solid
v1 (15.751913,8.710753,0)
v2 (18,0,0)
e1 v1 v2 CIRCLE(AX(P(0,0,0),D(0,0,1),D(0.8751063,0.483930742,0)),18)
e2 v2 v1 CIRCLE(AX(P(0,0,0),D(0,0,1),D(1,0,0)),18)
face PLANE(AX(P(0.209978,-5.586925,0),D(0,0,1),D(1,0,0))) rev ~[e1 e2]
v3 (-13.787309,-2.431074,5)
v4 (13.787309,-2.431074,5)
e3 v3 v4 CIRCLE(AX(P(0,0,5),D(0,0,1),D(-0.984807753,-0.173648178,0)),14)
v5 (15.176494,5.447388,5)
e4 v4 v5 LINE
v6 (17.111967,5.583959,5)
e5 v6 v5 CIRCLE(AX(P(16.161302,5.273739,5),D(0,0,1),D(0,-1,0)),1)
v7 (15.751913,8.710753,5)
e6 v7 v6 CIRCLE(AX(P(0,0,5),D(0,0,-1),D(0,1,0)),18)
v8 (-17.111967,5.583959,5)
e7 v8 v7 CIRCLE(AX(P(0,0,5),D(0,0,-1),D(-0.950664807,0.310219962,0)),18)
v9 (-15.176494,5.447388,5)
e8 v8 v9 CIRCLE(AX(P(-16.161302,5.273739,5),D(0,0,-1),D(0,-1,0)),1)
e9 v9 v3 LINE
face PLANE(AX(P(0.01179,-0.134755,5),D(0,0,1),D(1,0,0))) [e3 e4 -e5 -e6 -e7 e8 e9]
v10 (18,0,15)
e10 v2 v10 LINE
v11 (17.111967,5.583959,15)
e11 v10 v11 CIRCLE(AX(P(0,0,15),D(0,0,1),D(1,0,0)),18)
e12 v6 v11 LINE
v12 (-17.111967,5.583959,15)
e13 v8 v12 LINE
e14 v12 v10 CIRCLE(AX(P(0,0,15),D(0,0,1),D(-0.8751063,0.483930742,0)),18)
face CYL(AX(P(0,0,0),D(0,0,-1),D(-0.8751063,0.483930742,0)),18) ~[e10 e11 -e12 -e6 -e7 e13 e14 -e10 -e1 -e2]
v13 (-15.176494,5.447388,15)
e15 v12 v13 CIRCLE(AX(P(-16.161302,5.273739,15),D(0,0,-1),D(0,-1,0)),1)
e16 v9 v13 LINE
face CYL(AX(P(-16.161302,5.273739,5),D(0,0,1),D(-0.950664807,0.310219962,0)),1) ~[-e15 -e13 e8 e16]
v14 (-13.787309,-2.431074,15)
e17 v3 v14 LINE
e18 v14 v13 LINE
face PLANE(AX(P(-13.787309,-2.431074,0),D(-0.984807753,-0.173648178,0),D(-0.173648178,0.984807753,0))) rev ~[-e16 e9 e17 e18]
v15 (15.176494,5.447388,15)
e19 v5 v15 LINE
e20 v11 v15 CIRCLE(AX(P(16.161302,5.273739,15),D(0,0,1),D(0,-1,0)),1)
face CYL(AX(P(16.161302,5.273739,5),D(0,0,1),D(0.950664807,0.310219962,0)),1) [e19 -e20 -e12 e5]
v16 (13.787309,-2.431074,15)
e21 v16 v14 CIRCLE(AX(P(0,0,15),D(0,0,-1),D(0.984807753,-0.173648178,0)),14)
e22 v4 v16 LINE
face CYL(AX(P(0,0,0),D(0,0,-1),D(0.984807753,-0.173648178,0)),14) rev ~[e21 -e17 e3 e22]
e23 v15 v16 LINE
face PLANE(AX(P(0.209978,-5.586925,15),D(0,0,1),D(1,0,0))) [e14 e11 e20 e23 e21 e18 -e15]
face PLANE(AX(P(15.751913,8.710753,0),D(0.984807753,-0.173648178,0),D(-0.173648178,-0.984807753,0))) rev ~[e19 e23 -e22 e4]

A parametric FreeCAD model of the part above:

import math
import FreeCAD as App
import Part
import Sketcher
Q = App.Units.Quantity


def edges_at(feature, points):
    """Names of the edges that pass closest to the given points."""
    edges = feature.Shape.Edges
    near = lambda p: min(range(len(edges)), key=lambda i: edges[i].distToShape(Part.Vertex(*p))[0])
    return sorted({f"Edge{near(p) + 1}" for p in points})

doc = App.newDocument("Part")
body = doc.addObject("PartDesign::Body", "Body")

# Sketch on XY plane
sketch1 = body.newObject("Sketcher::SketchObject", "Sketch")
sketch1.AttachmentSupport = (doc.getObject("XY_Plane"), [""])
sketch1.MapMode = "FlatFace"
sketch1.addGeometry([
    Part.ArcOfCircle(Part.Circle(App.Vector(0, 0, 0), App.Vector(0, 0, 1), 14), math.radians(-170), math.radians(-10)),
    Part.LineSegment(App.Vector(13.787309, -2.431074, 0), App.Vector(15.751913, 8.710753, 0)),
    Part.ArcOfCircle(Part.Circle(App.Vector(0, 0, 0), App.Vector(0, 0, 1), 18), math.radians(28.942441), math.radians(151.057559)),
    Part.LineSegment(App.Vector(-15.751913, 8.710753, 0), App.Vector(-13.787309, -2.431074, 0)),
], False)
sketch1.addConstraint([
    Sketcher.Constraint("Tangent", 0, 2, 1, 1),
    Sketcher.Constraint("Coincident", 1, 2, 2, 1),
    Sketcher.Constraint("Coincident", 2, 2, 3, 1),
    Sketcher.Constraint("Tangent", 3, 2, 0, 1),
    Sketcher.Constraint("Coincident", 0, 3, -1, 1),
    Sketcher.Constraint("Coincident", 2, 3, -1, 1),
    Sketcher.Constraint("Horizontal", 1, 2, 2, 2),
    Sketcher.Constraint("Radius", 0, Q("14 mm")),
    Sketcher.Constraint("Radius", 2, Q("18 mm")),
    Sketcher.Constraint("Angle", 1, Q("80 deg")),
])
pad1 = body.newObject("PartDesign::Pad", "Pad")
pad1.Profile = sketch1
pad1.Length = 5

# Sketch on XY plane
sketch2 = body.newObject("Sketcher::SketchObject", "Sketch001")
sketch2.AttachmentSupport = (doc.getObject("XY_Plane"), [""])
sketch2.MapMode = "FlatFace"
sketch2.addGeometry([
    Part.ArcOfCircle(Part.Circle(App.Vector(0, 0, 0), App.Vector(0, 0, 1), 18), math.radians(151.057559), math.radians(360)),  # 0
    Part.ArcOfCircle(Part.Circle(App.Vector(0, 0, 0), App.Vector(0, 0, 1), 18), math.radians(0), math.radians(28.942441)),  # 1
    Part.LineSegment(App.Vector(15.751913, 8.710753, 0), App.Vector(13.787309, -2.431074, 0)),  # 2
    Part.ArcOfCircle(Part.Circle(App.Vector(0, 0, 0), App.Vector(0, 0, 1), 14), math.radians(-170), math.radians(-10)),  # 3
    Part.LineSegment(App.Vector(-13.787309, -2.431074, 0), App.Vector(-15.751913, 8.710753, 0)),  # 4
], False)
sketch2.addConstraint([
    Sketcher.Constraint("Tangent", 0, 2, 1, 1),
    Sketcher.Constraint("Coincident", 1, 2, 2, 1),
    Sketcher.Constraint("Tangent", 2, 2, 3, 2),
    Sketcher.Constraint("Tangent", 3, 1, 4, 1),
    Sketcher.Constraint("Coincident", 4, 2, 0, 1),
    Sketcher.Constraint("Coincident", 0, 3, -1, 1),
    Sketcher.Constraint("Coincident", 3, 3, -1, 1),
    Sketcher.Constraint("Equal", 0, 1),
    Sketcher.Constraint("PointOnObject", 0, 2, -1),
    Sketcher.Constraint("Horizontal", 2, 2, 3, 1),
    Sketcher.Constraint("Radius", 0, Q("18 mm")),
    Sketcher.Constraint("Radius", 3, Q("14 mm")),
    Sketcher.Constraint("Angle", 2, Q("-100 deg")),
])
pad2 = body.newObject("PartDesign::Pad", "Pad001")
pad2.Profile = sketch2
pad2.Length = 15
doc.recompute()

fillet = body.newObject("PartDesign::Fillet", "Fillet")
fillet.Base = (pad2, edges_at(pad2, [(-15.752, 8.711, 10), (15.752, 8.711, 10)]))
fillet.Radius = 1

doc.recompute()
